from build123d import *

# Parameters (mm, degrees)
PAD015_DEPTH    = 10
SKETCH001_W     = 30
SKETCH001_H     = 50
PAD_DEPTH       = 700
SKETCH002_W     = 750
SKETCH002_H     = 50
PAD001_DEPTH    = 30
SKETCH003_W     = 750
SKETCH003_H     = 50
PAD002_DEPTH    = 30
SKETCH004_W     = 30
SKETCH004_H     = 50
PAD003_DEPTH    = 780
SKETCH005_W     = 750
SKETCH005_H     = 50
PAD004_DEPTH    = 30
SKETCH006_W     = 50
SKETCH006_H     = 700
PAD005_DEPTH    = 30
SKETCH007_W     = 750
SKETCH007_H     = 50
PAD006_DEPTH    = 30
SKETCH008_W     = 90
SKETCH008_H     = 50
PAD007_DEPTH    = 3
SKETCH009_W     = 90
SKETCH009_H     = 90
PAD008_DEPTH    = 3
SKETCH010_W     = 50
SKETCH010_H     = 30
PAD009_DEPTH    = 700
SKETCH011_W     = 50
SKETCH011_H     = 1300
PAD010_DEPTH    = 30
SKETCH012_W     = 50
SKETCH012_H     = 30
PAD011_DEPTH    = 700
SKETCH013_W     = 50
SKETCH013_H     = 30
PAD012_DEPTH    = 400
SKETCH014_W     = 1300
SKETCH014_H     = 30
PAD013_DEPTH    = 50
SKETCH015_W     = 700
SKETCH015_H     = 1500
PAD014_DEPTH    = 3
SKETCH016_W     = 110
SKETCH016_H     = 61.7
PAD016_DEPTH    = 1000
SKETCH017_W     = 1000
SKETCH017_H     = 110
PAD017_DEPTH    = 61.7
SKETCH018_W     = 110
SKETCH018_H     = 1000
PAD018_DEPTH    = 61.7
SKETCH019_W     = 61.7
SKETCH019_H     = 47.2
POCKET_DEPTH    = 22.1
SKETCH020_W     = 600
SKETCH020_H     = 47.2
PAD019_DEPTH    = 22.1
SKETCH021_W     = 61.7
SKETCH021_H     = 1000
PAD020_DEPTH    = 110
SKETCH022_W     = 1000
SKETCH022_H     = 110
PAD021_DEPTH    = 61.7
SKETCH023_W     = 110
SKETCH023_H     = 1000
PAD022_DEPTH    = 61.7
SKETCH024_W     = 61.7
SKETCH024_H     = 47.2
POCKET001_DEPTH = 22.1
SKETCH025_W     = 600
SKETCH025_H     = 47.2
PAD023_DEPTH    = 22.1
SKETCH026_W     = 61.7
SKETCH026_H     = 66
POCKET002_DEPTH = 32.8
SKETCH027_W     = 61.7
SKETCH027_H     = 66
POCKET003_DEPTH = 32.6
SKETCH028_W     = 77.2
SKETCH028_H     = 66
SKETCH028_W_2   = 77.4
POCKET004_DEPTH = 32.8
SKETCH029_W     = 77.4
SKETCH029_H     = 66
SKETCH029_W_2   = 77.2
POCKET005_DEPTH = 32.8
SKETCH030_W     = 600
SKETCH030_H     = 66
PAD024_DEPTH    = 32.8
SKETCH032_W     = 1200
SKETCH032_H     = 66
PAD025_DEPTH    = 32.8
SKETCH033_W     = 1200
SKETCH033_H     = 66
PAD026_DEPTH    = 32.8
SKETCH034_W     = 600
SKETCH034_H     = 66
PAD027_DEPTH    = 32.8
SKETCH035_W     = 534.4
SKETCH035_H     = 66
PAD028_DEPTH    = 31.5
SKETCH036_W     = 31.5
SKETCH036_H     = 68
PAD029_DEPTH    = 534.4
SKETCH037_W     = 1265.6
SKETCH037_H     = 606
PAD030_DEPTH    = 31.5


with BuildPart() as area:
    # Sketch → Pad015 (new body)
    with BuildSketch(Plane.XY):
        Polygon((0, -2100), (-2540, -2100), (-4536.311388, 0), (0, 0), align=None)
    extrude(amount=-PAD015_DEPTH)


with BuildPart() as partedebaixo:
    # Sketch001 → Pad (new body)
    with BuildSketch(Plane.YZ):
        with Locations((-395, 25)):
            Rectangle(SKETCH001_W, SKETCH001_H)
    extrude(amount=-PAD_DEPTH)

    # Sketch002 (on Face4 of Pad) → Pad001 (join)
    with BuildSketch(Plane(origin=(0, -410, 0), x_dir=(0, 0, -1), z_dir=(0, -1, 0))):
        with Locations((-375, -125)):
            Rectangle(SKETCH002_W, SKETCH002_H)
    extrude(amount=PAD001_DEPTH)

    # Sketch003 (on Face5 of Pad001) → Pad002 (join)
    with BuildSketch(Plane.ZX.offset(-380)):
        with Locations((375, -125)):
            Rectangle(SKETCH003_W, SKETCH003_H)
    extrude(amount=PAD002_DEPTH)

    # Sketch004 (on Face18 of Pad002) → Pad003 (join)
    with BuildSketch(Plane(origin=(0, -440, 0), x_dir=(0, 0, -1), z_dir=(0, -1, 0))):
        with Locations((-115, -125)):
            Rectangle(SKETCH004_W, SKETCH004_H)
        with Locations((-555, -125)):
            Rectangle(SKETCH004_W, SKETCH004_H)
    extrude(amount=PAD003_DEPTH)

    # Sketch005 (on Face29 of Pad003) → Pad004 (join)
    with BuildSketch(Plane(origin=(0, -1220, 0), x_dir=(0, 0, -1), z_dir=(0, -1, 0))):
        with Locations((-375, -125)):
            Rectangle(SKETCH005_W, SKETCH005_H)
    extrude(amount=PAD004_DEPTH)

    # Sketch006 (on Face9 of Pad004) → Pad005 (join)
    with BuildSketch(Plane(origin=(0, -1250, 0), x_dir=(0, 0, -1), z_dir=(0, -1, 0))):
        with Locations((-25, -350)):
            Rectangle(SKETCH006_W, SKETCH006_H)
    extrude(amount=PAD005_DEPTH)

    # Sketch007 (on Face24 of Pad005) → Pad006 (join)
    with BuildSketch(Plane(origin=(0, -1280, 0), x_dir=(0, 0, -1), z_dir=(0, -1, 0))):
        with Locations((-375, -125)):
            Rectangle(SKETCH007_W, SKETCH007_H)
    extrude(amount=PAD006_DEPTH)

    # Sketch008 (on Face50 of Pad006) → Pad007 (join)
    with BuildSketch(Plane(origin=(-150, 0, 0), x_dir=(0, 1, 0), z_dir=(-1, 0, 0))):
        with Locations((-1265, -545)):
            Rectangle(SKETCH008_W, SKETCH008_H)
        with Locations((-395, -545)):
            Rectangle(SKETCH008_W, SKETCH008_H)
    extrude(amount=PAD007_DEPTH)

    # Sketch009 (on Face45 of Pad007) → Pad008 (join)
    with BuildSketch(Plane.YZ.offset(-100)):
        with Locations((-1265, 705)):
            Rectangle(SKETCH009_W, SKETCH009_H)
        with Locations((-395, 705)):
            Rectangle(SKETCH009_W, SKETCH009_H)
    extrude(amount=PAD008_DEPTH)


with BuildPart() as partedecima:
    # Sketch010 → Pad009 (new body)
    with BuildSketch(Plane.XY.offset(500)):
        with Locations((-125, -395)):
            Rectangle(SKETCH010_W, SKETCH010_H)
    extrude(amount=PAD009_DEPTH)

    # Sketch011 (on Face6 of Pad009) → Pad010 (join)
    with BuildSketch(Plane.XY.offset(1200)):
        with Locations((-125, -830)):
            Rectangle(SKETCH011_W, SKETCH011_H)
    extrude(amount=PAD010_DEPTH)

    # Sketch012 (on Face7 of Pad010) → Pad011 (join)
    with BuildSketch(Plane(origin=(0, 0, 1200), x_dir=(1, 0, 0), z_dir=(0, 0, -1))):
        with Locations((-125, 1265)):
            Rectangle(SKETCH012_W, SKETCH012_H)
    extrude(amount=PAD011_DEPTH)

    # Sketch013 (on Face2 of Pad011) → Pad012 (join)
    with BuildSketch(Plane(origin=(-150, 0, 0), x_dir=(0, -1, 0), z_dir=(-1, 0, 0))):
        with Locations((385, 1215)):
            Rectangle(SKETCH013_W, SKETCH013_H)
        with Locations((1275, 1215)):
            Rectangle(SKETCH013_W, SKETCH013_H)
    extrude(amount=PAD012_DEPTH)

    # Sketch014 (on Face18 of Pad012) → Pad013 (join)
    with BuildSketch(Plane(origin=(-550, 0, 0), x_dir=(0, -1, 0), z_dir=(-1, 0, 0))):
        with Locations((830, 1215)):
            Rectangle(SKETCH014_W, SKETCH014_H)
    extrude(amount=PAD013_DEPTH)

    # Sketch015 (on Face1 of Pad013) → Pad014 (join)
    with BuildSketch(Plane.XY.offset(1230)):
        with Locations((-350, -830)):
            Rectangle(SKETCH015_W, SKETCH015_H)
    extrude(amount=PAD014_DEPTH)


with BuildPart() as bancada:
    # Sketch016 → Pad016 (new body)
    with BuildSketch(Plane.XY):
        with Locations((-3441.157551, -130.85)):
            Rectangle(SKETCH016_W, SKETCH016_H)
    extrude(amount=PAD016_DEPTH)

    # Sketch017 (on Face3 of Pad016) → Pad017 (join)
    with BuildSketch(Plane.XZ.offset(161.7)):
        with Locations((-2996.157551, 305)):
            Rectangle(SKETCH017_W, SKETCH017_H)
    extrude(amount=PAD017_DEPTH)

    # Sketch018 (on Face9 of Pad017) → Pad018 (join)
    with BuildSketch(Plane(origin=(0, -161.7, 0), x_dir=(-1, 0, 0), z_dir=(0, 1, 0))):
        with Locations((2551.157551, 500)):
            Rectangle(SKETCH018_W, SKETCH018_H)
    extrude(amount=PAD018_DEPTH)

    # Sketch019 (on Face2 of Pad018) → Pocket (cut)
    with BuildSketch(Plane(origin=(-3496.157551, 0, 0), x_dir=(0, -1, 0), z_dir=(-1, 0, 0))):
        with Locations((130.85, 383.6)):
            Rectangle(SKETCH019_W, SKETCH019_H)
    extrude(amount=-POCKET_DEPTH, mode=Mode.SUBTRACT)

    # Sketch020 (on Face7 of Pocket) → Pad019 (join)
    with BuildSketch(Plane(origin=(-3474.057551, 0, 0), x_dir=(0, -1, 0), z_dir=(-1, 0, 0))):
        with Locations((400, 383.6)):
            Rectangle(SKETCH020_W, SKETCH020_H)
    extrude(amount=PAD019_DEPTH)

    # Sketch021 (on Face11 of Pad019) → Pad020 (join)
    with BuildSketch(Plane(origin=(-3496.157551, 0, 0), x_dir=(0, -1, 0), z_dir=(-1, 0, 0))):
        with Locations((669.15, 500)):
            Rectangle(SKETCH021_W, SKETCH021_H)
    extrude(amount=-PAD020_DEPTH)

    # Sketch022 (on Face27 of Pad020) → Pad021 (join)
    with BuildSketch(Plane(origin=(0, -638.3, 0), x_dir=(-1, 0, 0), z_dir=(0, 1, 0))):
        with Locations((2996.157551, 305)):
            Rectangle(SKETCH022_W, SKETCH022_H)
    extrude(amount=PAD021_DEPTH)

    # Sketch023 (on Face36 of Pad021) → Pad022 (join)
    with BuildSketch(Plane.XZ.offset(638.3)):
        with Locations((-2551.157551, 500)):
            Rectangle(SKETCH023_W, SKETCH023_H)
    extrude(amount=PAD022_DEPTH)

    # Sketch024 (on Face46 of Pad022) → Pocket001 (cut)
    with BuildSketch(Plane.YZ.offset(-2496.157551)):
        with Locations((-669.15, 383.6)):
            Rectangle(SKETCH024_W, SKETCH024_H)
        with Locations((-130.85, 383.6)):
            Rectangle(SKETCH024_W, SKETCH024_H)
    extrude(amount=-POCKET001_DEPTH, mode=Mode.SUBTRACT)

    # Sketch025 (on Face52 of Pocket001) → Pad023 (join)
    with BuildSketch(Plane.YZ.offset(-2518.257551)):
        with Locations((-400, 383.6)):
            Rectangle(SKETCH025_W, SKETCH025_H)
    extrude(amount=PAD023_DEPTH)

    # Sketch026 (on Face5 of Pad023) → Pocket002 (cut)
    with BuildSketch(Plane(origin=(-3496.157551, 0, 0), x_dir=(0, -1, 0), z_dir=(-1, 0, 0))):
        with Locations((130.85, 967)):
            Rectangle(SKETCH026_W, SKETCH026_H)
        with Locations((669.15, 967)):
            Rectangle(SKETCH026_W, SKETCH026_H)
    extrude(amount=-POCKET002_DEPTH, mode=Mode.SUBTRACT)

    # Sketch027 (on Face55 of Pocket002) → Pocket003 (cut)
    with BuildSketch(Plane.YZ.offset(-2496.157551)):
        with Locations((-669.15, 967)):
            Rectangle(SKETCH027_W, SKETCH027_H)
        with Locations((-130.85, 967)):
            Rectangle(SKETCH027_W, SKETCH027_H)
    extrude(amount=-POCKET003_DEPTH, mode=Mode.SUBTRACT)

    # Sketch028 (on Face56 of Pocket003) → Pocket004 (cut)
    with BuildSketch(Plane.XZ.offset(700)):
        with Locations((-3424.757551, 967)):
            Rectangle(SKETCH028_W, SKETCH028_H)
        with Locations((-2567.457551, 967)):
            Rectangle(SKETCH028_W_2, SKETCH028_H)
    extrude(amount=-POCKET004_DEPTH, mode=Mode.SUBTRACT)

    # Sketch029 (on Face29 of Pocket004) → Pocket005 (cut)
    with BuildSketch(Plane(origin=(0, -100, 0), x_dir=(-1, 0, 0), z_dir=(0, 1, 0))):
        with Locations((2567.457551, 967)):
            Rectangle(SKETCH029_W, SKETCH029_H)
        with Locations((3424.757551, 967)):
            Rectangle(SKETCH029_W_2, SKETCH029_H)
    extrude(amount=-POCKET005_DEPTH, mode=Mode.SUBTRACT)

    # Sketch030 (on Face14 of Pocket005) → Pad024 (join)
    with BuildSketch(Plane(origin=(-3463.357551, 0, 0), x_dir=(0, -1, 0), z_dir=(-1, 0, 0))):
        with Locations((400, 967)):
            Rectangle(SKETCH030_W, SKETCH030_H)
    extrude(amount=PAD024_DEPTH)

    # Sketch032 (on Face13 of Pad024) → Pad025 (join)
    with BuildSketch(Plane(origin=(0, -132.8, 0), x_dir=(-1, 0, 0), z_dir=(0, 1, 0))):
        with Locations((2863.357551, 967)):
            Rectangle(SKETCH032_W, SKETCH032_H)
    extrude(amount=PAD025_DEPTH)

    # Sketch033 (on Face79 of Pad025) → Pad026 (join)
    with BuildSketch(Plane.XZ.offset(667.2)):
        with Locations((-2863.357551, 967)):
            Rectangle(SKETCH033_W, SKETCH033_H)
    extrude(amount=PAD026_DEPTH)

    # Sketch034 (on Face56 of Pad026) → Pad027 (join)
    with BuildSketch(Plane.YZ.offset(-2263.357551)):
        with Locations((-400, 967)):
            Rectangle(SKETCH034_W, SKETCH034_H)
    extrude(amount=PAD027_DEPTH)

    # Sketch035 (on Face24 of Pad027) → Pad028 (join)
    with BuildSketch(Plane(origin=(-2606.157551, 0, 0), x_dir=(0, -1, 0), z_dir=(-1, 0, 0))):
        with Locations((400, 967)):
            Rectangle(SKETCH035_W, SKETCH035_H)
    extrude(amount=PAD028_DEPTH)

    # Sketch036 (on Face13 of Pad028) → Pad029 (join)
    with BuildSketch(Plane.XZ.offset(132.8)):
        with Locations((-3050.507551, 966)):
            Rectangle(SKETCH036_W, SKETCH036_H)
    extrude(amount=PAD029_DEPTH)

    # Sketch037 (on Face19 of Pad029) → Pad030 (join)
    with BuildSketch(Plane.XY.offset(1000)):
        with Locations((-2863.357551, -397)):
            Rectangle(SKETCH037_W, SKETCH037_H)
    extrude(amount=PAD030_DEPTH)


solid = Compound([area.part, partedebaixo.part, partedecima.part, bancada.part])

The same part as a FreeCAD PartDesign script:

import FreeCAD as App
import Part
import Sketcher
Q = App.Units.Quantity


def add_polygon(sketch, points):
    """Adds a closed chain of lines whose ends are joined by coincident constraints."""
    first, n = sketch.GeometryCount, len(points)
    for a, b in zip(points, points[1:] + points[:1]):
        sketch.addGeometry(Part.LineSegment(App.Vector(*a, 0), App.Vector(*b, 0)), False)
    for i in range(n):
        sketch.addConstraint(Sketcher.Constraint("Coincident", first + i, 2, first + (i + 1) % n, 1))

doc = App.newDocument("Part")
body = doc.addObject("PartDesign::Body", "Body")

sketch1 = body.newObject("Sketcher::SketchObject", "Sketch")
sketch1.AttachmentSupport = (doc.getObject("XY_Plane"), [""])
sketch1.MapMode = "FlatFace"
add_polygon(sketch1, [(-2540, -2100), (0, -2100), (0, 0), (-4536, 0)])
sketch1.addConstraint(Sketcher.Constraint("Horizontal", 0))
sketch1.addConstraint(Sketcher.Constraint("Vertical", 1))
sketch1.addConstraint(Sketcher.Constraint("Horizontal", 2))
sketch1.addConstraint(Sketcher.Constraint("Coincident", 1, 2, -1, 1))
sketch1.addConstraint(Sketcher.Constraint("DistanceX", 0, 1, 0, 2, Q("2540 mm")))
sketch1.addConstraint(Sketcher.Constraint("DistanceY", 1, 1, 1, 2, Q("2100 mm")))
sketch1.addConstraint(Sketcher.Constraint("Angle", 3, Q("-46.45 deg")))
pad1 = body.newObject("PartDesign::Pad", "Pad")
pad1.Profile = sketch1
pad1.Length = 10
pad1.Reversed = True
body2 = doc.addObject("PartDesign::Body", "Body001")

sketch2 = body2.newObject("Sketcher::SketchObject", "Sketch001")
sketch2.AttachmentSupport = (doc.getObject("YZ_Plane001"), [""])
sketch2.MapMode = "FlatFace"
add_polygon(sketch2, [(-410, 50), (-410, 0), (-380, 0), (-380, 50)])
sketch2.addConstraint(Sketcher.Constraint("Vertical", 0))
sketch2.addConstraint(Sketcher.Constraint("Horizontal", 1))
sketch2.addConstraint(Sketcher.Constraint("Vertical", 2))
sketch2.addConstraint(Sketcher.Constraint("Horizontal", 3))
sketch2.addConstraint(Sketcher.Constraint("PointOnObject", 0, 2, -1))
sketch2.addConstraint(Sketcher.Constraint("DistanceX", 1, 1, 1, 2, Q("30 mm")))
sketch2.addConstraint(Sketcher.Constraint("DistanceY", 0, 2, 0, 1, Q("50 mm")))
sketch2.addConstraint(Sketcher.Constraint("DistanceX", 0, 2, -1, 1, Q("410 mm")))
pad2 = body2.newObject("PartDesign::Pad", "Pad001")
pad2.Profile = sketch2
pad2.Length = 700
pad2.Reversed = True

sketch3 = body2.newObject("Sketcher::SketchObject", "Sketch002")
sketch3.AttachmentSupport = (doc.getObject("XZ_Plane001"), [""])
sketch3.MapMode = "FlatFace"
sketch3.AttachmentOffset = App.Placement(App.Vector(0, 0, 410), App.Rotation())
add_polygon(sketch3, [(-100, 750), (-150, 750), (-150, 0), (-100, 0)])
sketch3.addConstraint(Sketcher.Constraint("Horizontal", 0))
sketch3.addConstraint(Sketcher.Constraint("Vertical", 1))
sketch3.addConstraint(Sketcher.Constraint("Horizontal", 2))
sketch3.addConstraint(Sketcher.Constraint("Vertical", 3))
sketch3.addConstraint(Sketcher.Constraint("PointOnObject", 1, 2, -1))
sketch3.addConstraint(Sketcher.Constraint("DistanceX", 0, 2, 0, 1, Q("50 mm")))
sketch3.addConstraint(Sketcher.Constraint("DistanceY", 1, 2, 1, 1, Q("750 mm")))
sketch3.addConstraint(Sketcher.Constraint("DistanceX", 0, 2, -1, 1, Q("150 mm")))
pad3 = body2.newObject("PartDesign::Pad", "Pad002")
pad3.Profile = sketch3
pad3.Length = 30

sketch4 = body2.newObject("Sketcher::SketchObject", "Sketch003")
sketch4.AttachmentSupport = (doc.getObject("XZ_Plane001"), [""])
sketch4.MapMode = "FlatFace"
sketch4.AttachmentOffset = App.Placement(App.Vector(0, 0, 380), App.Rotation())
add_polygon(sketch4, [(-100, 0), (-150, 0), (-150, 750), (-100, 750)])
sketch4.addConstraint(Sketcher.Constraint("Horizontal", 0))
sketch4.addConstraint(Sketcher.Constraint("Vertical", 1))
sketch4.addConstraint(Sketcher.Constraint("Horizontal", 2))
sketch4.addConstraint(Sketcher.Constraint("Vertical", 3))
sketch4.addConstraint(Sketcher.Constraint("PointOnObject", 0, 2, -1))
sketch4.addConstraint(Sketcher.Constraint("DistanceX", 0, 2, 0, 1, Q("50 mm")))
sketch4.addConstraint(Sketcher.Constraint("DistanceY", 1, 1, 1, 2, Q("750 mm")))
sketch4.addConstraint(Sketcher.Constraint("DistanceX", 0, 2, -1, 1, Q("150 mm")))
pad4 = body2.newObject("PartDesign::Pad", "Pad003")
pad4.Profile = sketch4
pad4.Length = 30
pad4.Reversed = True

sketch5 = body2.newObject("Sketcher::SketchObject", "Sketch004")
sketch5.AttachmentSupport = (doc.getObject("XZ_Plane001"), [""])
sketch5.MapMode = "FlatFace"
sketch5.AttachmentOffset = App.Placement(App.Vector(0, 0, 440), App.Rotation())
add_polygon(sketch5, [(-100, 130), (-150, 130), (-150, 100), (-100, 100)])
add_polygon(sketch5, [(-100, 570), (-150, 570), (-150, 540), (-100, 540)])
sketch5.addConstraint(Sketcher.Constraint("Horizontal", 0))
sketch5.addConstraint(Sketcher.Constraint("Vertical", 1))
sketch5.addConstraint(Sketcher.Constraint("Horizontal", 2))
sketch5.addConstraint(Sketcher.Constraint("Vertical", 3))
sketch5.addConstraint(Sketcher.Constraint("Horizontal", 4))
sketch5.addConstraint(Sketcher.Constraint("Vertical", 5))
sketch5.addConstraint(Sketcher.Constraint("Horizontal", 6))
sketch5.addConstraint(Sketcher.Constraint("Vertical", 7))
sketch5.addConstraint(Sketcher.Constraint("Vertical", 1, 2, 4, 2))
sketch5.addConstraint(Sketcher.Constraint("Vertical", 3, 2, 6, 2))
sketch5.addConstraint(Sketcher.Constraint("Equal", 3, 5))
sketch5.addConstraint(Sketcher.Constraint("DistanceX", 0, 2, 0, 1, Q("50 mm")))
sketch5.addConstraint(Sketcher.Constraint("DistanceY", 1, 2, 1, 1, Q("30 mm")))
sketch5.addConstraint(Sketcher.Constraint("DistanceX", 0, 2, -1, 1, Q("150 mm")))
sketch5.addConstraint(Sketcher.Constraint("DistanceY", -1, 1, 0, 2, Q("130 mm")))
sketch5.addConstraint(Sketcher.Constraint("DistanceY", -1, 1, 4, 2, Q("570 mm")))
pad5 = body2.newObject("PartDesign::Pad", "Pad004")
pad5.Profile = sketch5
pad5.Length = 780

sketch6 = body2.newObject("Sketcher::SketchObject", "Sketch005")
sketch6.AttachmentSupport = (doc.getObject("XZ_Plane001"), [""])
sketch6.MapMode = "FlatFace"
sketch6.AttachmentOffset = App.Placement(App.Vector(0, 0, 1220), App.Rotation())
add_polygon(sketch6, [(-100, 750), (-150, 750), (-150, 0), (-100, 0)])
sketch6.addConstraint(Sketcher.Constraint("Horizontal", 0))
sketch6.addConstraint(Sketcher.Constraint("Vertical", 1))
sketch6.addConstraint(Sketcher.Constraint("Horizontal", 2))
sketch6.addConstraint(Sketcher.Constraint("Vertical", 3))
sketch6.addConstraint(Sketcher.Constraint("PointOnObject", 1, 2, -1))
sketch6.addConstraint(Sketcher.Constraint("DistanceX", 0, 2, 0, 1, Q("50 mm")))
sketch6.addConstraint(Sketcher.Constraint("DistanceY", 1, 2, 1, 1, Q("750 mm")))
sketch6.addConstraint(Sketcher.Constraint("DistanceX", 0, 2, -1, 1, Q("150 mm")))
pad6 = body2.newObject("PartDesign::Pad", "Pad005")
pad6.Profile = sketch6
pad6.Length = 30

sketch7 = body2.newObject("Sketcher::SketchObject", "Sketch006")
sketch7.AttachmentSupport = (doc.getObject("XZ_Plane001"), [""])
sketch7.MapMode = "FlatFace"
sketch7.AttachmentOffset = App.Placement(App.Vector(0, 0, 1250), App.Rotation())
add_polygon(sketch7, [(0, 50), (-700, 50), (-700, 0), (0, 0)])
sketch7.addConstraint(Sketcher.Constraint("Horizontal", 0))
sketch7.addConstraint(Sketcher.Constraint("Vertical", 1))
sketch7.addConstraint(Sketcher.Constraint("Horizontal", 2))
sketch7.addConstraint(Sketcher.Constraint("Vertical", 3))
sketch7.addConstraint(Sketcher.Constraint("Coincident", 2, 2, -1, 1))
sketch7.addConstraint(Sketcher.Constraint("DistanceX", 0, 2, 0, 1, Q("700 mm")))
sketch7.addConstraint(Sketcher.Constraint("DistanceY", 1, 2, 1, 1, Q("50 mm")))
pad7 = body2.newObject("PartDesign::Pad", "Pad006")
pad7.Profile = sketch7
pad7.Length = 30

sketch8 = body2.newObject("Sketcher::SketchObject", "Sketch007")
sketch8.AttachmentSupport = (doc.getObject("XZ_Plane001"), [""])
sketch8.MapMode = "FlatFace"
sketch8.AttachmentOffset = App.Placement(App.Vector(0, 0, 1280), App.Rotation())
add_polygon(sketch8, [(-100, 750), (-150, 750), (-150, 0), (-100, 0)])
sketch8.addConstraint(Sketcher.Constraint("Horizontal", 0))
sketch8.addConstraint(Sketcher.Constraint("Vertical", 1))
sketch8.addConstraint(Sketcher.Constraint("Horizontal", 2))
sketch8.addConstraint(Sketcher.Constraint("Vertical", 3))
sketch8.addConstraint(Sketcher.Constraint("PointOnObject", 1, 2, -1))
sketch8.addConstraint(Sketcher.Constraint("DistanceX", 0, 2, 0, 1, Q("50 mm")))
sketch8.addConstraint(Sketcher.Constraint("DistanceY", 1, 2, 1, 1, Q("750 mm")))
sketch8.addConstraint(Sketcher.Constraint("DistanceX", 0, 2, -1, 1, Q("150 mm")))
pad8 = body2.newObject("PartDesign::Pad", "Pad007")
pad8.Profile = sketch8
pad8.Length = 30

sketch9 = body2.newObject("Sketcher::SketchObject", "Sketch008")
sketch9.AttachmentSupport = (doc.getObject("YZ_Plane001"), [""])
sketch9.MapMode = "FlatFace"
sketch9.AttachmentOffset = App.Placement(App.Vector(0, 0, -150), App.Rotation())
add_polygon(sketch9, [(-1310, 520), (-1310, 570), (-1220, 570), (-1220, 520)])
add_polygon(sketch9, [(-440, 520), (-440, 570), (-350, 570), (-350, 520)])
sketch9.addConstraint(Sketcher.Constraint("Vertical", 0))
sketch9.addConstraint(Sketcher.Constraint("Horizontal", 1))
sketch9.addConstraint(Sketcher.Constraint("Vertical", 2))
sketch9.addConstraint(Sketcher.Constraint("Horizontal", 3))
sketch9.addConstraint(Sketcher.Constraint("Vertical", 4))
sketch9.addConstraint(Sketcher.Constraint("Horizontal", 5))
sketch9.addConstraint(Sketcher.Constraint("Vertical", 6))
sketch9.addConstraint(Sketcher.Constraint("Horizontal", 7))
sketch9.addConstraint(Sketcher.Constraint("Horizontal", 1, 2, 4, 2))
sketch9.addConstraint(Sketcher.Constraint("Horizontal", 3, 2, 6, 2))
sketch9.addConstraint(Sketcher.Constraint("Equal", 3, 5))
sketch9.addConstraint(Sketcher.Constraint("DistanceX", 1, 1, 1, 2, Q("90 mm")))
sketch9.addConstraint(Sketcher.Constraint("DistanceY", 0, 1, 0, 2, Q("50 mm")))
sketch9.addConstraint(Sketcher.Constraint("DistanceX", 0, 2, -1, 1, Q("1310 mm")))
sketch9.addConstraint(Sketcher.Constraint("DistanceY", -1, 1, 0, 2, Q("570 mm")))
sketch9.addConstraint(Sketcher.Constraint("DistanceX", 4, 2, -1, 1, Q("440 mm")))
pad9 = body2.newObject("PartDesign::Pad", "Pad008")
pad9.Profile = sketch9
pad9.Length = 3
pad9.Reversed = True

sketch10 = body2.newObject("Sketcher::SketchObject", "Sketch009")
sketch10.AttachmentSupport = (doc.getObject("YZ_Plane001"), [""])
sketch10.MapMode = "FlatFace"
sketch10.AttachmentOffset = App.Placement(App.Vector(0, 0, -100), App.Rotation())
add_polygon(sketch10, [(-1310, 750), (-1310, 660), (-1220, 660), (-1220, 750)])
add_polygon(sketch10, [(-440, 750), (-440, 660), (-350, 660), (-350, 750)])
sketch10.addConstraint(Sketcher.Constraint("Vertical", 0))
sketch10.addConstraint(Sketcher.Constraint("Horizontal", 1))
sketch10.addConstraint(Sketcher.Constraint("Vertical", 2))
sketch10.addConstraint(Sketcher.Constraint("Horizontal", 3))
sketch10.addConstraint(Sketcher.Constraint("Vertical", 4))
sketch10.addConstraint(Sketcher.Constraint("Horizontal", 5))
sketch10.addConstraint(Sketcher.Constraint("Vertical", 6))
sketch10.addConstraint(Sketcher.Constraint("Horizontal", 7))
sketch10.addConstraint(Sketcher.Constraint("Horizontal", 1, 2, 4, 2))
sketch10.addConstraint(Sketcher.Constraint("Horizontal", 3, 2, 6, 2))
sketch10.addConstraint(Sketcher.Constraint("Equal", 3, 5))
sketch10.addConstraint(Sketcher.Constraint("Equal", 7, 0))
sketch10.addConstraint(Sketcher.Constraint("DistanceX", 1, 1, 1, 2, Q("90 mm")))
sketch10.addConstraint(Sketcher.Constraint("DistanceX", 0, 2, -1, 1, Q("1310 mm")))
sketch10.addConstraint(Sketcher.Constraint("DistanceY", -1, 1, 0, 2, Q("660 mm")))
sketch10.addConstraint(Sketcher.Constraint("DistanceX", 4, 2, -1, 1, Q("440 mm")))
pad10 = body2.newObject("PartDesign::Pad", "Pad009")
pad10.Profile = sketch10
pad10.Length = 3
body3 = doc.addObject("PartDesign::Body", "Body002")

sketch11 = body3.newObject("Sketcher::SketchObject", "Sketch010")
sketch11.AttachmentSupport = (doc.getObject("XY_Plane002"), [""])
sketch11.MapMode = "FlatFace"
sketch11.AttachmentOffset = App.Placement(App.Vector(0, 0, 500), App.Rotation())
add_polygon(sketch11, [(-150, -380), (-150, -410), (-100, -410), (-100, -380)])
sketch11.addConstraint(Sketcher.Constraint("Vertical", 0))
sketch11.addConstraint(Sketcher.Constraint("Horizontal", 1))
sketch11.addConstraint(Sketcher.Constraint("Vertical", 2))
sketch11.addConstraint(Sketcher.Constraint("Horizontal", 3))
sketch11.addConstraint(Sketcher.Constraint("DistanceX", 1, 1, 1, 2, Q("50 mm")))
sketch11.addConstraint(Sketcher.Constraint("DistanceY", 0, 2, 0, 1, Q("30 mm")))
sketch11.addConstraint(Sketcher.Constraint("DistanceX", 0, 2, -1, 1, Q("150 mm")))
sketch11.addConstraint(Sketcher.Constraint("DistanceY", 0, 2, -1, 1, Q("410 mm")))
pad11 = body3.newObject("PartDesign::Pad", "Pad010")
pad11.Profile = sketch11
pad11.Length = 700

sketch12 = body3.newObject("Sketcher::SketchObject", "Sketch011")
sketch12.AttachmentSupport = (doc.getObject("XY_Plane002"), [""])
sketch12.MapMode = "FlatFace"
sketch12.AttachmentOffset = App.Placement(App.Vector(0, 0, 1200), App.Rotation())
add_polygon(sketch12, [(-150, -180), (-150, -1480), (-100, -1480), (-100, -180)])
sketch12.addConstraint(Sketcher.Constraint("Vertical", 0))
sketch12.addConstraint(Sketcher.Constraint("Horizontal", 1))
sketch12.addConstraint(Sketcher.Constraint("Vertical", 2))
sketch12.addConstraint(Sketcher.Constraint("Horizontal", 3))
sketch12.addConstraint(Sketcher.Constraint("DistanceX", 1, 1, 1, 2, Q("50 mm")))
sketch12.addConstraint(Sketcher.Constraint("DistanceY", 0, 2, 0, 1, Q("1300 mm")))
sketch12.addConstraint(Sketcher.Constraint("DistanceX", 0, 2, -1, 1, Q("150 mm")))
sketch12.addConstraint(Sketcher.Constraint("DistanceY", 0, 2, -1, 1, Q("1480 mm")))
pad12 = body3.newObject("PartDesign::Pad", "Pad011")
pad12.Profile = sketch12
pad12.Length = 30

sketch13 = body3.newObject("Sketcher::SketchObject", "Sketch012")
sketch13.AttachmentSupport = (doc.getObject("XY_Plane002"), [""])
sketch13.MapMode = "FlatFace"
sketch13.AttachmentOffset = App.Placement(App.Vector(0, 0, 1200), App.Rotation())
add_polygon(sketch13, [(-150, -1280), (-150, -1250), (-100, -1250), (-100, -1280)])
sketch13.addConstraint(Sketcher.Constraint("Vertical", 0))
sketch13.addConstraint(Sketcher.Constraint("Horizontal", 1))
sketch13.addConstraint(Sketcher.Constraint("Vertical", 2))
sketch13.addConstraint(Sketcher.Constraint("Horizontal", 3))
sketch13.addConstraint(Sketcher.Constraint("DistanceX", 1, 1, 1, 2, Q("50 mm")))
sketch13.addConstraint(Sketcher.Constraint("DistanceY", 0, 1, 0, 2, Q("30 mm")))
sketch13.addConstraint(Sketcher.Constraint("DistanceX", 0, 2, -1, 1, Q("150 mm")))
sketch13.addConstraint(Sketcher.Constraint("DistanceY", 0, 2, -1, 1, Q("1250 mm")))
pad13 = body3.newObject("PartDesign::Pad", "Pad012")
pad13.Profile = sketch13
pad13.Length = 700
pad13.Reversed = True

sketch14 = body3.newObject("Sketcher::SketchObject", "Sketch013")
sketch14.AttachmentSupport = (doc.getObject("YZ_Plane002"), [""])
sketch14.MapMode = "FlatFace"
sketch14.AttachmentOffset = App.Placement(App.Vector(0, 0, -150), App.Rotation())
add_polygon(sketch14, [(-360, 1230), (-360, 1200), (-410, 1200), (-410, 1230)])
add_polygon(sketch14, [(-1250, 1230), (-1250, 1200), (-1300, 1200), (-1300, 1230)])
sketch14.addConstraint(Sketcher.Constraint("Vertical", 0))
sketch14.addConstraint(Sketcher.Constraint("Horizontal", 1))
sketch14.addConstraint(Sketcher.Constraint("Vertical", 2))
sketch14.addConstraint(Sketcher.Constraint("Horizontal", 3))
sketch14.addConstraint(Sketcher.Constraint("Vertical", 4))
sketch14.addConstraint(Sketcher.Constraint("Horizontal", 5))
sketch14.addConstraint(Sketcher.Constraint("Vertical", 6))
sketch14.addConstraint(Sketcher.Constraint("Horizontal", 7))
sketch14.addConstraint(Sketcher.Constraint("Horizontal", 1, 2, 4, 2))
sketch14.addConstraint(Sketcher.Constraint("Horizontal", 3, 2, 6, 2))
sketch14.addConstraint(Sketcher.Constraint("Equal", 3, 5))
sketch14.addConstraint(Sketcher.Constraint("DistanceX", 1, 2, 1, 1, Q("50 mm")))
sketch14.addConstraint(Sketcher.Constraint("DistanceY", 0, 2, 0, 1, Q("30 mm")))
sketch14.addConstraint(Sketcher.Constraint("DistanceX", 0, 2, -1, 1, Q("360 mm")))
sketch14.addConstraint(Sketcher.Constraint("DistanceY", -1, 1, 0, 2, Q("1200 mm")))
sketch14.addConstraint(Sketcher.Constraint("DistanceX", 4, 2, -1, 1, Q("1250 mm")))
pad14 = body3.newObject("PartDesign::Pad", "Pad013")
pad14.Profile = sketch14
pad14.Length = 400
pad14.Reversed = True

sketch15 = body3.newObject("Sketcher::SketchObject", "Sketch014")
sketch15.AttachmentSupport = (doc.getObject("YZ_Plane002"), [""])
sketch15.MapMode = "FlatFace"
sketch15.AttachmentOffset = App.Placement(App.Vector(0, 0, -550), App.Rotation())
add_polygon(sketch15, [(-180, 1230), (-180, 1200), (-1480, 1200), (-1480, 1230)])
sketch15.addConstraint(Sketcher.Constraint("Vertical", 0))
sketch15.addConstraint(Sketcher.Constraint("Horizontal", 1))
sketch15.addConstraint(Sketcher.Constraint("Vertical", 2))
sketch15.addConstraint(Sketcher.Constraint("Horizontal", 3))
sketch15.addConstraint(Sketcher.Constraint("DistanceX", 1, 2, 1, 1, Q("1300 mm")))
sketch15.addConstraint(Sketcher.Constraint("DistanceY", 0, 2, 0, 1, Q("30 mm")))
sketch15.addConstraint(Sketcher.Constraint("DistanceX", 0, 2, -1, 1, Q("180 mm")))
sketch15.addConstraint(Sketcher.Constraint("DistanceY", -1, 1, 0, 2, Q("1200 mm")))
pad15 = body3.newObject("PartDesign::Pad", "Pad014")
pad15.Profile = sketch15
pad15.Length = 50
pad15.Reversed = True

sketch16 = body3.newObject("Sketcher::SketchObject", "Sketch015")
sketch16.AttachmentSupport = (doc.getObject("XY_Plane002"), [""])
sketch16.MapMode = "FlatFace"
sketch16.AttachmentOffset = App.Placement(App.Vector(0, 0, 1230), App.Rotation())
add_polygon(sketch16, [(-700, -80), (-700, -1580), (0, -1580), (0, -80)])
sketch16.addConstraint(Sketcher.Constraint("Vertical", 0))
sketch16.addConstraint(Sketcher.Constraint("Horizontal", 1))
sketch16.addConstraint(Sketcher.Constraint("Vertical", 2))
sketch16.addConstraint(Sketcher.Constraint("Horizontal", 3))
sketch16.addConstraint(Sketcher.Constraint("PointOnObject", 1, 2, -2))
sketch16.addConstraint(Sketcher.Constraint("DistanceX", 1, 1, 1, 2, Q("700 mm")))
sketch16.addConstraint(Sketcher.Constraint("DistanceY", 0, 2, 0, 1, Q("1500 mm")))
sketch16.addConstraint(Sketcher.Constraint("DistanceY", 0, 2, -1, 1, Q("1580 mm")))
pad16 = body3.newObject("PartDesign::Pad", "Pad015")
pad16.Profile = sketch16
pad16.Length = 3
body4 = doc.addObject("PartDesign::Body", "Body003")

sketch17 = body4.newObject("Sketcher::SketchObject", "Sketch016")
sketch17.AttachmentSupport = (doc.getObject("XY_Plane003"), [""])
sketch17.MapMode = "FlatFace"
add_polygon(sketch17, [(-3496, -100), (-3496, -162), (-3386, -162), (-3386, -100)])
sketch17.addConstraint(Sketcher.Constraint("Vertical", 0))
sketch17.addConstraint(Sketcher.Constraint("Horizontal", 1))
sketch17.addConstraint(Sketcher.Constraint("Vertical", 2))
sketch17.addConstraint(Sketcher.Constraint("Horizontal", 3))
sketch17.addConstraint(Sketcher.Constraint("DistanceX", 1, 1, 1, 2, Q("110 mm")))
sketch17.addConstraint(Sketcher.Constraint("DistanceY", 0, 2, 0, 1, Q("61.7 mm")))
sketch17.addConstraint(Sketcher.Constraint("DistanceY", 2, 2, -1, 1, Q("100 mm")))
sketch17.addConstraint(Sketcher.Constraint("DistanceX", 0, 2, -1, 1, Q("3496.157551 mm")))
pad17 = body4.newObject("PartDesign::Pad", "Pad016")
pad17.Profile = sketch17
pad17.Length = 1000

sketch18 = body4.newObject("Sketcher::SketchObject", "Sketch017")
sketch18.AttachmentSupport = (doc.getObject("XZ_Plane003"), [""])
sketch18.MapMode = "FlatFace"
sketch18.AttachmentOffset = App.Placement(App.Vector(0, 0, 161.7), App.Rotation())
add_polygon(sketch18, [(-3496, 360), (-3496, 250), (-2496, 250), (-2496, 360)])
sketch18.addConstraint(Sketcher.Constraint("Vertical", 0))
sketch18.addConstraint(Sketcher.Constraint("Horizontal", 1))
sketch18.addConstraint(Sketcher.Constraint("Vertical", 2))
sketch18.addConstraint(Sketcher.Constraint("Horizontal", 3))
sketch18.addConstraint(Sketcher.Constraint("DistanceX", 1, 1, 1, 2, Q("1000 mm")))
sketch18.addConstraint(Sketcher.Constraint("DistanceY", 0, 2, 0, 1, Q("110 mm")))
sketch18.addConstraint(Sketcher.Constraint("DistanceY", -1, 1, 0, 2, Q("250 mm")))
sketch18.addConstraint(Sketcher.Constraint("DistanceX", 0, 2, -1, 1, Q("3496.157551 mm")))
pad18 = body4.newObject("PartDesign::Pad", "Pad017")
pad18.Profile = sketch18
pad18.Length = 61.7

sketch19 = body4.newObject("Sketcher::SketchObject", "Sketch018")
sketch19.AttachmentSupport = (doc.getObject("XZ_Plane003"), [""])
sketch19.MapMode = "FlatFace"
sketch19.AttachmentOffset = App.Placement(App.Vector(0, 0, 161.7), App.Rotation())
add_polygon(sketch19, [(-2496, 1000), (-2496, 0), (-2606, 0), (-2606, 1000)])
sketch19.addConstraint(Sketcher.Constraint("Vertical", 0))
sketch19.addConstraint(Sketcher.Constraint("Horizontal", 1))
sketch19.addConstraint(Sketcher.Constraint("Vertical", 2))
sketch19.addConstraint(Sketcher.Constraint("Horizontal", 3))
sketch19.addConstraint(Sketcher.Constraint("PointOnObject", 0, 2, -1))
sketch19.addConstraint(Sketcher.Constraint("DistanceX", 1, 2, 1, 1, Q("110 mm")))
sketch19.addConstraint(Sketcher.Constraint("DistanceY", 0, 2, 0, 1, Q("1000 mm")))
sketch19.addConstraint(Sketcher.Constraint("DistanceX", 0, 2, -1, 1, Q("2496.157551 mm")))
pad19 = body4.newObject("PartDesign::Pad", "Pad018")
pad19.Profile = sketch19
pad19.Length = 61.7
pad19.Reversed = True

sketch20 = body4.newObject("Sketcher::SketchObject", "Sketch019")
sketch20.AttachmentSupport = (doc.getObject("YZ_Plane003"), [""])
sketch20.MapMode = "FlatFace"
sketch20.AttachmentOffset = App.Placement(App.Vector(0, 0, -3496.157551), App.Rotation())
add_polygon(sketch20, [(-100, 407), (-100, 360), (-162, 360), (-162, 407)])
sketch20.addConstraint(Sketcher.Constraint("Vertical", 0))
sketch20.addConstraint(Sketcher.Constraint("Horizontal", 1))
sketch20.addConstraint(Sketcher.Constraint("Vertical", 2))
sketch20.addConstraint(Sketcher.Constraint("Horizontal", 3))
sketch20.addConstraint(Sketcher.Constraint("DistanceX", 1, 2, 1, 1, Q("61.7 mm")))
sketch20.addConstraint(Sketcher.Constraint("DistanceY", 0, 2, 0, 1, Q("47.2 mm")))
sketch20.addConstraint(Sketcher.Constraint("DistanceX", 0, 2, -1, 1, Q("100 mm")))
sketch20.addConstraint(Sketcher.Constraint("DistanceY", -1, 1, 0, 2, Q("360 mm")))
pocket1 = body4.newObject("PartDesign::Pocket", "Pocket")
pocket1.Profile = sketch20
pocket1.Length = 22.1
pocket1.Reversed = True

sketch21 = body4.newObject("Sketcher::SketchObject", "Sketch020")
sketch21.AttachmentSupport = (doc.getObject("YZ_Plane003"), [""])
sketch21.MapMode = "FlatFace"
sketch21.AttachmentOffset = App.Placement(App.Vector(0, 0, -3474.057551), App.Rotation())
add_polygon(sketch21, [(-100, 407), (-100, 360), (-700, 360), (-700, 407)])
sketch21.addConstraint(Sketcher.Constraint("Vertical", 0))
sketch21.addConstraint(Sketcher.Constraint("Horizontal", 1))
sketch21.addConstraint(Sketcher.Constraint("Vertical", 2))
sketch21.addConstraint(Sketcher.Constraint("Horizontal", 3))
sketch21.addConstraint(Sketcher.Constraint("DistanceX", 1, 2, 1, 1, Q("600 mm")))
sketch21.addConstraint(Sketcher.Constraint("DistanceY", 0, 2, 0, 1, Q("47.2 mm")))
sketch21.addConstraint(Sketcher.Constraint("DistanceX", 0, 2, -1, 1, Q("100 mm")))
sketch21.addConstraint(Sketcher.Constraint("DistanceY", -1, 1, 0, 2, Q("360 mm")))
pad20 = body4.newObject("PartDesign::Pad", "Pad019")
pad20.Profile = sketch21
pad20.Length = 22.1
pad20.Reversed = True

sketch22 = body4.newObject("Sketcher::SketchObject", "Sketch021")
sketch22.AttachmentSupport = (doc.getObject("YZ_Plane003"), [""])
sketch22.MapMode = "FlatFace"
sketch22.AttachmentOffset = App.Placement(App.Vector(0, 0, -3496.157551), App.Rotation())
add_polygon(sketch22, [(-638, 1000), (-638, 0), (-700, 0), (-700, 1000)])
sketch22.addConstraint(Sketcher.Constraint("Vertical", 0))
sketch22.addConstraint(Sketcher.Constraint("Horizontal", 1))
sketch22.addConstraint(Sketcher.Constraint("Vertical", 2))
sketch22.addConstraint(Sketcher.Constraint("Horizontal", 3))
sketch22.addConstraint(Sketcher.Constraint("PointOnObject", 0, 2, -1))
sketch22.addConstraint(Sketcher.Constraint("DistanceY", 0, 2, 0, 1, Q("1000 mm")))
sketch22.addConstraint(Sketcher.Constraint("DistanceX", 1, 2, 1, 1, Q("61.7 mm")))
sketch22.addConstraint(Sketcher.Constraint("DistanceX", 1, 2, -1, 1, Q("700 mm")))
pad21 = body4.newObject("PartDesign::Pad", "Pad020")
pad21.Profile = sketch22
pad21.Length = 110

sketch23 = body4.newObject("Sketcher::SketchObject", "Sketch022")
sketch23.AttachmentSupport = (doc.getObject("XZ_Plane003"), [""])
sketch23.MapMode = "FlatFace"
sketch23.AttachmentOffset = App.Placement(App.Vector(0, 0, 638.3), App.Rotation())
add_polygon(sketch23, [(-2496, 360), (-2496, 250), (-3496, 250), (-3496, 360)])
sketch23.addConstraint(Sketcher.Constraint("Vertical", 0))
sketch23.addConstraint(Sketcher.Constraint("Horizontal", 1))
sketch23.addConstraint(Sketcher.Constraint("Vertical", 2))
sketch23.addConstraint(Sketcher.Constraint("Horizontal", 3))
sketch23.addConstraint(Sketcher.Constraint("DistanceX", 1, 2, 1, 1, Q("1000 mm")))
sketch23.addConstraint(Sketcher.Constraint("DistanceY", 0, 2, 0, 1, Q("110 mm")))
sketch23.addConstraint(Sketcher.Constraint("DistanceY", -1, 1, 0, 2, Q("250 mm")))
sketch23.addConstraint(Sketcher.Constraint("DistanceX", 0, 2, -1, 1, Q("2496.157551 mm")))
pad22 = body4.newObject("PartDesign::Pad", "Pad021")
pad22.Profile = sketch23
pad22.Length = 61.7
pad22.Reversed = True

sketch24 = body4.newObject("Sketcher::SketchObject", "Sketch023")
sketch24.AttachmentSupport = (doc.getObject("XZ_Plane003"), [""])
sketch24.MapMode = "FlatFace"
sketch24.AttachmentOffset = App.Placement(App.Vector(0, 0, 638.3), App.Rotation())
add_polygon(sketch24, [(-2606, 1000), (-2606, 0), (-2496, 0), (-2496, 1000)])
sketch24.addConstraint(Sketcher.Constraint("Vertical", 0))
sketch24.addConstraint(Sketcher.Constraint("Horizontal", 1))
sketch24.addConstraint(Sketcher.Constraint("Vertical", 2))
sketch24.addConstraint(Sketcher.Constraint("Horizontal", 3))
sketch24.addConstraint(Sketcher.Constraint("PointOnObject", 0, 2, -1))
sketch24.addConstraint(Sketcher.Constraint("DistanceX", 1, 1, 1, 2, Q("110 mm")))
sketch24.addConstraint(Sketcher.Constraint("DistanceY", 0, 2, 0, 1, Q("1000 mm")))
sketch24.addConstraint(Sketcher.Constraint("DistanceX", 0, 2, -1, 1, Q("2606.157551 mm")))
pad23 = body4.newObject("PartDesign::Pad", "Pad022")
pad23.Profile = sketch24
pad23.Length = 61.7

sketch25 = body4.newObject("Sketcher::SketchObject", "Sketch024")
sketch25.AttachmentSupport = (doc.getObject("YZ_Plane003"), [""])
sketch25.MapMode = "FlatFace"
sketch25.AttachmentOffset = App.Placement(App.Vector(0, 0, -2496.157551), App.Rotation())
add_polygon(sketch25, [(-700, 407), (-700, 360), (-638, 360), (-638, 407)])
add_polygon(sketch25, [(-162, 407), (-162, 360), (-100, 360), (-100, 407)])
sketch25.addConstraint(Sketcher.Constraint("Vertical", 0))
sketch25.addConstraint(Sketcher.Constraint("Horizontal", 1))
sketch25.addConstraint(Sketcher.Constraint("Vertical", 2))
sketch25.addConstraint(Sketcher.Constraint("Horizontal", 3))
sketch25.addConstraint(Sketcher.Constraint("Vertical", 4))
sketch25.addConstraint(Sketcher.Constraint("Horizontal", 5))
sketch25.addConstraint(Sketcher.Constraint("Vertical", 6))
sketch25.addConstraint(Sketcher.Constraint("Horizontal", 7))
sketch25.addConstraint(Sketcher.Constraint("Horizontal", 1, 2, 4, 2))
sketch25.addConstraint(Sketcher.Constraint("Horizontal", 3, 2, 6, 2))
sketch25.addConstraint(Sketcher.Constraint("Equal", 3, 5))
sketch25.addConstraint(Sketcher.Constraint("DistanceX", 1, 1, 1, 2, Q("61.7 mm")))
sketch25.addConstraint(Sketcher.Constraint("DistanceY", 0, 2, 0, 1, Q("47.2 mm")))
sketch25.addConstraint(Sketcher.Constraint("DistanceX", 0, 2, -1, 1, Q("700 mm")))
sketch25.addConstraint(Sketcher.Constraint("DistanceY", -1, 1, 0, 2, Q("360 mm")))
sketch25.addConstraint(Sketcher.Constraint("DistanceX", 5, 2, -1, 1, Q("100 mm")))
pocket2 = body4.newObject("PartDesign::Pocket", "Pocket001")
pocket2.Profile = sketch25
pocket2.Length = 22.1

sketch26 = body4.newObject("Sketcher::SketchObject", "Sketch025")
sketch26.AttachmentSupport = (doc.getObject("YZ_Plane003"), [""])
sketch26.MapMode = "FlatFace"
sketch26.AttachmentOffset = App.Placement(App.Vector(0, 0, -2518.257551), App.Rotation())
add_polygon(sketch26, [(-700, 407), (-700, 360), (-100, 360), (-100, 407)])
sketch26.addConstraint(Sketcher.Constraint("Vertical", 0))
sketch26.addConstraint(Sketcher.Constraint("Horizontal", 1))
sketch26.addConstraint(Sketcher.Constraint("Vertical", 2))
sketch26.addConstraint(Sketcher.Constraint("Horizontal", 3))
sketch26.addConstraint(Sketcher.Constraint("DistanceX", 1, 1, 1, 2, Q("600 mm")))
sketch26.addConstraint(Sketcher.Constraint("DistanceY", 0, 2, 0, 1, Q("47.2 mm")))
sketch26.addConstraint(Sketcher.Constraint("DistanceX", 0, 2, -1, 1, Q("700 mm")))
sketch26.addConstraint(Sketcher.Constraint("DistanceY", -1, 1, 0, 2, Q("360 mm")))
pad24 = body4.newObject("PartDesign::Pad", "Pad023")
pad24.Profile = sketch26
pad24.Length = 22.1

sketch27 = body4.newObject("Sketcher::SketchObject", "Sketch026")
sketch27.AttachmentSupport = (doc.getObject("YZ_Plane003"), [""])
sketch27.MapMode = "FlatFace"
sketch27.AttachmentOffset = App.Placement(App.Vector(0, 0, -3496.157551), App.Rotation())
add_polygon(sketch27, [(-100, 1000), (-100, 934), (-162, 934), (-162, 1000)])
add_polygon(sketch27, [(-638, 1000), (-638, 934), (-700, 934), (-700, 1000)])
sketch27.addConstraint(Sketcher.Constraint("Vertical", 0))
sketch27.addConstraint(Sketcher.Constraint("Horizontal", 1))
sketch27.addConstraint(Sketcher.Constraint("Vertical", 2))
sketch27.addConstraint(Sketcher.Constraint("Horizontal", 3))
sketch27.addConstraint(Sketcher.Constraint("Vertical", 4))
sketch27.addConstraint(Sketcher.Constraint("Horizontal", 5))
sketch27.addConstraint(Sketcher.Constraint("Vertical", 6))
sketch27.addConstraint(Sketcher.Constraint("Horizontal", 7))
sketch27.addConstraint(Sketcher.Constraint("Horizontal", 1, 2, 4, 2))
sketch27.addConstraint(Sketcher.Constraint("Horizontal", 3, 2, 6, 2))
sketch27.addConstraint(Sketcher.Constraint("Equal", 3, 5))
sketch27.addConstraint(Sketcher.Constraint("DistanceY", 0, 2, 0, 1, Q("66 mm")))
sketch27.addConstraint(Sketcher.Constraint("DistanceX", 1, 2, 1, 1, Q("61.7 mm")))
sketch27.addConstraint(Sketcher.Constraint("DistanceX", 0, 2, -1, 1, Q("100 mm")))
sketch27.addConstraint(Sketcher.Constraint("DistanceY", -1, 1, 0, 2, Q("934 mm")))
sketch27.addConstraint(Sketcher.Constraint("DistanceX", 5, 2, -1, 1, Q("700 mm")))
pocket3 = body4.newObject("PartDesign::Pocket", "Pocket002")
pocket3.Profile = sketch27
pocket3.Length = 32.8
pocket3.Reversed = True

sketch28 = body4.newObject("Sketcher::SketchObject", "Sketch027")
sketch28.AttachmentSupport = (doc.getObject("YZ_Plane003"), [""])
sketch28.MapMode = "FlatFace"
sketch28.AttachmentOffset = App.Placement(App.Vector(0, 0, -2496.157551), App.Rotation())
add_polygon(sketch28, [(-700, 1000), (-700, 934), (-638, 934), (-638, 1000)])
add_polygon(sketch28, [(-162, 1000), (-162, 934), (-100, 934), (-100, 1000)])
sketch28.addConstraint(Sketcher.Constraint("Vertical", 0))
sketch28.addConstraint(Sketcher.Constraint("Horizontal", 1))
sketch28.addConstraint(Sketcher.Constraint("Vertical", 2))
sketch28.addConstraint(Sketcher.Constraint("Horizontal", 3))
sketch28.addConstraint(Sketcher.Constraint("Vertical", 4))
sketch28.addConstraint(Sketcher.Constraint("Horizontal", 5))
sketch28.addConstraint(Sketcher.Constraint("Vertical", 6))
sketch28.addConstraint(Sketcher.Constraint("Horizontal", 7))
sketch28.addConstraint(Sketcher.Constraint("Horizontal", 1, 2, 4, 2))
sketch28.addConstraint(Sketcher.Constraint("Horizontal", 3, 2, 6, 2))
sketch28.addConstraint(Sketcher.Constraint("Equal", 3, 5))
sketch28.addConstraint(Sketcher.Constraint("DistanceY", 0, 2, 0, 1, Q("66 mm")))
sketch28.addConstraint(Sketcher.Constraint("DistanceX", 1, 1, 1, 2, Q("61.7 mm")))
sketch28.addConstraint(Sketcher.Constraint("DistanceX", 0, 2, -1, 1, Q("700 mm")))
sketch28.addConstraint(Sketcher.Constraint("DistanceY", -1, 1, 0, 2, Q("934 mm")))
sketch28.addConstraint(Sketcher.Constraint("DistanceX", 5, 2, -1, 1, Q("100 mm")))
pocket4 = body4.newObject("PartDesign::Pocket", "Pocket003")
pocket4.Profile = sketch28
pocket4.Length = 32.6

sketch29 = body4.newObject("Sketcher::SketchObject", "Sketch028")
sketch29.AttachmentSupport = (doc.getObject("XZ_Plane003"), [""])
sketch29.MapMode = "FlatFace"
sketch29.AttachmentOffset = App.Placement(App.Vector(0, 0, 700), App.Rotation())
add_polygon(sketch29, [(-3463, 1000), (-3463, 934), (-3386, 934), (-3386, 1000)])
add_polygon(sketch29, [(-2606, 1000), (-2606, 934), (-2529, 934), (-2529, 1000)])
sketch29.addConstraint(Sketcher.Constraint("Vertical", 0))
sketch29.addConstraint(Sketcher.Constraint("Horizontal", 1))
sketch29.addConstraint(Sketcher.Constraint("Vertical", 2))
sketch29.addConstraint(Sketcher.Constraint("Horizontal", 3))
sketch29.addConstraint(Sketcher.Constraint("Vertical", 4))
sketch29.addConstraint(Sketcher.Constraint("Horizontal", 5))
sketch29.addConstraint(Sketcher.Constraint("Vertical", 6))
sketch29.addConstraint(Sketcher.Constraint("Horizontal", 7))
sketch29.addConstraint(Sketcher.Constraint("Horizontal", 1, 2, 4, 2))
sketch29.addConstraint(Sketcher.Constraint("Horizontal", 3, 2, 6, 2))
sketch29.addConstraint(Sketcher.Constraint("DistanceY", 0, 2, 0, 1, Q("66 mm")))
sketch29.addConstraint(Sketcher.Constraint("DistanceX", 1, 1, 1, 2, Q("77.2 mm")))
sketch29.addConstraint(Sketcher.Constraint("DistanceX", 5, 1, 5, 2, Q("77.4 mm")))
sketch29.addConstraint(Sketcher.Constraint("DistanceY", -1, 1, 0, 2, Q("934 mm")))
sketch29.addConstraint(Sketcher.Constraint("DistanceX", 1, 2, 4, 2, Q("780 mm")))
sketch29.addConstraint(Sketcher.Constraint("DistanceX", 0, 2, -1, 1, Q("3463.357551 mm")))
pocket5 = body4.newObject("PartDesign::Pocket", "Pocket004")
pocket5.Profile = sketch29
pocket5.Length = 32.8

sketch30 = body4.newObject("Sketcher::SketchObject", "Sketch029")
sketch30.AttachmentSupport = (doc.getObject("XZ_Plane003"), [""])
sketch30.MapMode = "FlatFace"
sketch30.AttachmentOffset = App.Placement(App.Vector(0, 0, 100), App.Rotation())
add_polygon(sketch30, [(-2529, 1000), (-2529, 934), (-2606, 934), (-2606, 1000)])
add_polygon(sketch30, [(-3386, 1000), (-3386, 934), (-3463, 934), (-3463, 1000)])
sketch30.addConstraint(Sketcher.Constraint("Vertical", 0))
sketch30.addConstraint(Sketcher.Constraint("Horizontal", 1))
sketch30.addConstraint(Sketcher.Constraint("Vertical", 2))
sketch30.addConstraint(Sketcher.Constraint("Horizontal", 3))
sketch30.addConstraint(Sketcher.Constraint("Vertical", 4))
sketch30.addConstraint(Sketcher.Constraint("Horizontal", 5))
sketch30.addConstraint(Sketcher.Constraint("Vertical", 6))
sketch30.addConstraint(Sketcher.Constraint("Horizontal", 7))
sketch30.addConstraint(Sketcher.Constraint("Horizontal", 1, 2, 4, 2))
sketch30.addConstraint(Sketcher.Constraint("Horizontal", 3, 2, 6, 2))
sketch30.addConstraint(Sketcher.Constraint("DistanceY", 0, 2, 0, 1, Q("66 mm")))
sketch30.addConstraint(Sketcher.Constraint("DistanceX", 1, 2, 1, 1, Q("77.4 mm")))
sketch30.addConstraint(Sketcher.Constraint("DistanceX", 5, 2, 5, 1, Q("77.2 mm")))
sketch30.addConstraint(Sketcher.Constraint("DistanceY", -1, 1, 0, 2, Q("934 mm")))
sketch30.addConstraint(Sketcher.Constraint("DistanceX", 4, 2, 1, 2, Q("780 mm")))
sketch30.addConstraint(Sketcher.Constraint("DistanceX", 0, 2, -1, 1, Q("2528.757551 mm")))
pocket6 = body4.newObject("PartDesign::Pocket", "Pocket005")
pocket6.Profile = sketch30
pocket6.Length = 32.8
pocket6.Reversed = True

sketch31 = body4.newObject("Sketcher::SketchObject", "Sketch030")
sketch31.AttachmentSupport = (doc.getObject("YZ_Plane003"), [""])
sketch31.MapMode = "FlatFace"
sketch31.AttachmentOffset = App.Placement(App.Vector(0, 0, -3463.357551), App.Rotation())
add_polygon(sketch31, [(-100, 1000), (-100, 934), (-700, 934), (-700, 1000)])
sketch31.addConstraint(Sketcher.Constraint("Vertical", 0))
sketch31.addConstraint(Sketcher.Constraint("Horizontal", 1))
sketch31.addConstraint(Sketcher.Constraint("Vertical", 2))
sketch31.addConstraint(Sketcher.Constraint("Horizontal", 3))
sketch31.addConstraint(Sketcher.Constraint("DistanceX", 1, 2, 1, 1, Q("600 mm")))
sketch31.addConstraint(Sketcher.Constraint("DistanceY", 0, 2, 0, 1, Q("66 mm")))
sketch31.addConstraint(Sketcher.Constraint("DistanceX", 0, 2, -1, 1, Q("100 mm")))
sketch31.addConstraint(Sketcher.Constraint("DistanceY", -1, 1, 0, 2, Q("934 mm")))
pad25 = body4.newObject("PartDesign::Pad", "Pad024")
pad25.Profile = sketch31
pad25.Length = 32.8
pad25.Reversed = True

sketch32 = body4.newObject("Sketcher::SketchObject", "Sketch031")
sketch32.AttachmentSupport = (doc.getObject("XZ_Plane003"), [""])
sketch32.MapMode = "FlatFace"
sketch32.AttachmentOffset = App.Placement(App.Vector(0, 0, 132.8), App.Rotation())
add_polygon(sketch32, [(-2263, 1000), (-2263, 934), (-3463, 934), (-3463, 1000)])
sketch32.addConstraint(Sketcher.Constraint("Vertical", 0))
sketch32.addConstraint(Sketcher.Constraint("Horizontal", 1))
sketch32.addConstraint(Sketcher.Constraint("Vertical", 2))
sketch32.addConstraint(Sketcher.Constraint("Horizontal", 3))
sketch32.addConstraint(Sketcher.Constraint("DistanceX", 1, 2, 1, 1, Q("1200 mm")))
sketch32.addConstraint(Sketcher.Constraint("DistanceY", 0, 2, 0, 1, Q("66 mm")))
sketch32.addConstraint(Sketcher.Constraint("DistanceY", -1, 1, 0, 2, Q("934 mm")))
sketch32.addConstraint(Sketcher.Constraint("DistanceX", 0, 2, -1, 1, Q("2263.357551 mm")))
pad26 = body4.newObject("PartDesign::Pad", "Pad025")
pad26.Profile = sketch32
pad26.Length = 32.8
pad26.Reversed = True

sketch33 = body4.newObject("Sketcher::SketchObject", "Sketch032")
sketch33.AttachmentSupport = (doc.getObject("XZ_Plane003"), [""])
sketch33.MapMode = "FlatFace"
sketch33.AttachmentOffset = App.Placement(App.Vector(0, 0, 667.2), App.Rotation())
add_polygon(sketch33, [(-3463, 1000), (-3463, 934), (-2263, 934), (-2263, 1000)])
sketch33.addConstraint(Sketcher.Constraint("Vertical", 0))
sketch33.addConstraint(Sketcher.Constraint("Horizontal", 1))
sketch33.addConstraint(Sketcher.Constraint("Vertical", 2))
sketch33.addConstraint(Sketcher.Constraint("Horizontal", 3))
sketch33.addConstraint(Sketcher.Constraint("DistanceX", 1, 1, 1, 2, Q("1200 mm")))
sketch33.addConstraint(Sketcher.Constraint("DistanceY", 0, 2, 0, 1, Q("66 mm")))
sketch33.addConstraint(Sketcher.Constraint("DistanceY", -1, 1, 0, 2, Q("934 mm")))
sketch33.addConstraint(Sketcher.Constraint("DistanceX", 0, 2, -1, 1, Q("3463.357551 mm")))
pad27 = body4.newObject("PartDesign::Pad", "Pad026")
pad27.Profile = sketch33
pad27.Length = 32.8

sketch34 = body4.newObject("Sketcher::SketchObject", "Sketch033")
sketch34.AttachmentSupport = (doc.getObject("YZ_Plane003"), [""])
sketch34.MapMode = "FlatFace"
sketch34.AttachmentOffset = App.Placement(App.Vector(0, 0, -2263.357551), App.Rotation())
add_polygon(sketch34, [(-700, 1000), (-700, 934), (-100, 934), (-100, 1000)])
sketch34.addConstraint(Sketcher.Constraint("Vertical", 0))
sketch34.addConstraint(Sketcher.Constraint("Horizontal", 1))
sketch34.addConstraint(Sketcher.Constraint("Vertical", 2))
sketch34.addConstraint(Sketcher.Constraint("Horizontal", 3))
sketch34.addConstraint(Sketcher.Constraint("DistanceX", 1, 1, 1, 2, Q("600 mm")))
sketch34.addConstraint(Sketcher.Constraint("DistanceY", 0, 2, 0, 1, Q("66 mm")))
sketch34.addConstraint(Sketcher.Constraint("DistanceX", 0, 2, -1, 1, Q("700 mm")))
sketch34.addConstraint(Sketcher.Constraint("DistanceY", -1, 1, 0, 2, Q("934 mm")))
pad28 = body4.newObject("PartDesign::Pad", "Pad027")
pad28.Profile = sketch34
pad28.Length = 32.8

sketch35 = body4.newObject("Sketcher::SketchObject", "Sketch034")
sketch35.AttachmentSupport = (doc.getObject("YZ_Plane003"), [""])
sketch35.MapMode = "FlatFace"
sketch35.AttachmentOffset = App.Placement(App.Vector(0, 0, -2606.157551), App.Rotation())
add_polygon(sketch35, [(-133, 1000), (-133, 934), (-667, 934), (-667, 1000)])
sketch35.addConstraint(Sketcher.Constraint("Vertical", 0))
sketch35.addConstraint(Sketcher.Constraint("Horizontal", 1))
sketch35.addConstraint(Sketcher.Constraint("Vertical", 2))
sketch35.addConstraint(Sketcher.Constraint("Horizontal", 3))
sketch35.addConstraint(Sketcher.Constraint("DistanceY", 0, 2, 0, 1, Q("66 mm")))
sketch35.addConstraint(Sketcher.Constraint("DistanceX", 1, 2, 1, 1, Q("534.4 mm")))
sketch35.addConstraint(Sketcher.Constraint("DistanceY", -1, 1, 0, 2, Q("934 mm")))
sketch35.addConstraint(Sketcher.Constraint("DistanceX", 0, 2, -1, 1, Q("132.8 mm")))
pad29 = body4.newObject("PartDesign::Pad", "Pad028")
pad29.Profile = sketch35
pad29.Length = 31.5
pad29.Reversed = True

sketch36 = body4.newObject("Sketcher::SketchObject", "Sketch035")
sketch36.AttachmentSupport = (doc.getObject("XZ_Plane003"), [""])
sketch36.MapMode = "FlatFace"
sketch36.AttachmentOffset = App.Placement(App.Vector(0, 0, 132.8), App.Rotation())
add_polygon(sketch36, [(-3066, 1000), (-3066, 932), (-3035, 932), (-3035, 1000)])
sketch36.addConstraint(Sketcher.Constraint("Vertical", 0))
sketch36.addConstraint(Sketcher.Constraint("Horizontal", 1))
sketch36.addConstraint(Sketcher.Constraint("Vertical", 2))
sketch36.addConstraint(Sketcher.Constraint("Horizontal", 3))
sketch36.addConstraint(Sketcher.Constraint("DistanceY", 0, 2, 0, 1, Q("68 mm")))
sketch36.addConstraint(Sketcher.Constraint("DistanceX", 1, 1, 1, 2, Q("31.5 mm")))
sketch36.addConstraint(Sketcher.Constraint("DistanceY", -1, 1, 0, 2, Q("932 mm")))
sketch36.addConstraint(Sketcher.Constraint("DistanceX", 0, 2, -1, 1, Q("3066.257551 mm")))
pad30 = body4.newObject("PartDesign::Pad", "Pad029")
pad30.Profile = sketch36
pad30.Length = 534.4

sketch37 = body4.newObject("Sketcher::SketchObject", "Sketch036")
sketch37.AttachmentSupport = (doc.getObject("XY_Plane003"), [""])
sketch37.MapMode = "FlatFace"
sketch37.AttachmentOffset = App.Placement(App.Vector(0, 0, 1000), App.Rotation())
add_polygon(sketch37, [(-3496, -94), (-3496, -700), (-2231, -700), (-2231, -94)])
sketch37.addConstraint(Sketcher.Constraint("Vertical", 0))
sketch37.addConstraint(Sketcher.Constraint("Horizontal", 1))
sketch37.addConstraint(Sketcher.Constraint("Vertical", 2))
sketch37.addConstraint(Sketcher.Constraint("Horizontal", 3))
sketch37.addConstraint(Sketcher.Constraint("DistanceY", 0, 2, 0, 1, Q("606 mm")))
sketch37.addConstraint(Sketcher.Constraint("DistanceX", 1, 1, 1, 2, Q("1265.6 mm")))
sketch37.addConstraint(Sketcher.Constraint("DistanceY", 0, 2, -1, 1, Q("700 mm")))
sketch37.addConstraint(Sketcher.Constraint("DistanceX", 0, 2, -1, 1, Q("3496.157551 mm")))
pad31 = body4.newObject("PartDesign::Pad", "Pad030")
pad31.Profile = sketch37
pad31.Length = 31.5

doc.recompute()
